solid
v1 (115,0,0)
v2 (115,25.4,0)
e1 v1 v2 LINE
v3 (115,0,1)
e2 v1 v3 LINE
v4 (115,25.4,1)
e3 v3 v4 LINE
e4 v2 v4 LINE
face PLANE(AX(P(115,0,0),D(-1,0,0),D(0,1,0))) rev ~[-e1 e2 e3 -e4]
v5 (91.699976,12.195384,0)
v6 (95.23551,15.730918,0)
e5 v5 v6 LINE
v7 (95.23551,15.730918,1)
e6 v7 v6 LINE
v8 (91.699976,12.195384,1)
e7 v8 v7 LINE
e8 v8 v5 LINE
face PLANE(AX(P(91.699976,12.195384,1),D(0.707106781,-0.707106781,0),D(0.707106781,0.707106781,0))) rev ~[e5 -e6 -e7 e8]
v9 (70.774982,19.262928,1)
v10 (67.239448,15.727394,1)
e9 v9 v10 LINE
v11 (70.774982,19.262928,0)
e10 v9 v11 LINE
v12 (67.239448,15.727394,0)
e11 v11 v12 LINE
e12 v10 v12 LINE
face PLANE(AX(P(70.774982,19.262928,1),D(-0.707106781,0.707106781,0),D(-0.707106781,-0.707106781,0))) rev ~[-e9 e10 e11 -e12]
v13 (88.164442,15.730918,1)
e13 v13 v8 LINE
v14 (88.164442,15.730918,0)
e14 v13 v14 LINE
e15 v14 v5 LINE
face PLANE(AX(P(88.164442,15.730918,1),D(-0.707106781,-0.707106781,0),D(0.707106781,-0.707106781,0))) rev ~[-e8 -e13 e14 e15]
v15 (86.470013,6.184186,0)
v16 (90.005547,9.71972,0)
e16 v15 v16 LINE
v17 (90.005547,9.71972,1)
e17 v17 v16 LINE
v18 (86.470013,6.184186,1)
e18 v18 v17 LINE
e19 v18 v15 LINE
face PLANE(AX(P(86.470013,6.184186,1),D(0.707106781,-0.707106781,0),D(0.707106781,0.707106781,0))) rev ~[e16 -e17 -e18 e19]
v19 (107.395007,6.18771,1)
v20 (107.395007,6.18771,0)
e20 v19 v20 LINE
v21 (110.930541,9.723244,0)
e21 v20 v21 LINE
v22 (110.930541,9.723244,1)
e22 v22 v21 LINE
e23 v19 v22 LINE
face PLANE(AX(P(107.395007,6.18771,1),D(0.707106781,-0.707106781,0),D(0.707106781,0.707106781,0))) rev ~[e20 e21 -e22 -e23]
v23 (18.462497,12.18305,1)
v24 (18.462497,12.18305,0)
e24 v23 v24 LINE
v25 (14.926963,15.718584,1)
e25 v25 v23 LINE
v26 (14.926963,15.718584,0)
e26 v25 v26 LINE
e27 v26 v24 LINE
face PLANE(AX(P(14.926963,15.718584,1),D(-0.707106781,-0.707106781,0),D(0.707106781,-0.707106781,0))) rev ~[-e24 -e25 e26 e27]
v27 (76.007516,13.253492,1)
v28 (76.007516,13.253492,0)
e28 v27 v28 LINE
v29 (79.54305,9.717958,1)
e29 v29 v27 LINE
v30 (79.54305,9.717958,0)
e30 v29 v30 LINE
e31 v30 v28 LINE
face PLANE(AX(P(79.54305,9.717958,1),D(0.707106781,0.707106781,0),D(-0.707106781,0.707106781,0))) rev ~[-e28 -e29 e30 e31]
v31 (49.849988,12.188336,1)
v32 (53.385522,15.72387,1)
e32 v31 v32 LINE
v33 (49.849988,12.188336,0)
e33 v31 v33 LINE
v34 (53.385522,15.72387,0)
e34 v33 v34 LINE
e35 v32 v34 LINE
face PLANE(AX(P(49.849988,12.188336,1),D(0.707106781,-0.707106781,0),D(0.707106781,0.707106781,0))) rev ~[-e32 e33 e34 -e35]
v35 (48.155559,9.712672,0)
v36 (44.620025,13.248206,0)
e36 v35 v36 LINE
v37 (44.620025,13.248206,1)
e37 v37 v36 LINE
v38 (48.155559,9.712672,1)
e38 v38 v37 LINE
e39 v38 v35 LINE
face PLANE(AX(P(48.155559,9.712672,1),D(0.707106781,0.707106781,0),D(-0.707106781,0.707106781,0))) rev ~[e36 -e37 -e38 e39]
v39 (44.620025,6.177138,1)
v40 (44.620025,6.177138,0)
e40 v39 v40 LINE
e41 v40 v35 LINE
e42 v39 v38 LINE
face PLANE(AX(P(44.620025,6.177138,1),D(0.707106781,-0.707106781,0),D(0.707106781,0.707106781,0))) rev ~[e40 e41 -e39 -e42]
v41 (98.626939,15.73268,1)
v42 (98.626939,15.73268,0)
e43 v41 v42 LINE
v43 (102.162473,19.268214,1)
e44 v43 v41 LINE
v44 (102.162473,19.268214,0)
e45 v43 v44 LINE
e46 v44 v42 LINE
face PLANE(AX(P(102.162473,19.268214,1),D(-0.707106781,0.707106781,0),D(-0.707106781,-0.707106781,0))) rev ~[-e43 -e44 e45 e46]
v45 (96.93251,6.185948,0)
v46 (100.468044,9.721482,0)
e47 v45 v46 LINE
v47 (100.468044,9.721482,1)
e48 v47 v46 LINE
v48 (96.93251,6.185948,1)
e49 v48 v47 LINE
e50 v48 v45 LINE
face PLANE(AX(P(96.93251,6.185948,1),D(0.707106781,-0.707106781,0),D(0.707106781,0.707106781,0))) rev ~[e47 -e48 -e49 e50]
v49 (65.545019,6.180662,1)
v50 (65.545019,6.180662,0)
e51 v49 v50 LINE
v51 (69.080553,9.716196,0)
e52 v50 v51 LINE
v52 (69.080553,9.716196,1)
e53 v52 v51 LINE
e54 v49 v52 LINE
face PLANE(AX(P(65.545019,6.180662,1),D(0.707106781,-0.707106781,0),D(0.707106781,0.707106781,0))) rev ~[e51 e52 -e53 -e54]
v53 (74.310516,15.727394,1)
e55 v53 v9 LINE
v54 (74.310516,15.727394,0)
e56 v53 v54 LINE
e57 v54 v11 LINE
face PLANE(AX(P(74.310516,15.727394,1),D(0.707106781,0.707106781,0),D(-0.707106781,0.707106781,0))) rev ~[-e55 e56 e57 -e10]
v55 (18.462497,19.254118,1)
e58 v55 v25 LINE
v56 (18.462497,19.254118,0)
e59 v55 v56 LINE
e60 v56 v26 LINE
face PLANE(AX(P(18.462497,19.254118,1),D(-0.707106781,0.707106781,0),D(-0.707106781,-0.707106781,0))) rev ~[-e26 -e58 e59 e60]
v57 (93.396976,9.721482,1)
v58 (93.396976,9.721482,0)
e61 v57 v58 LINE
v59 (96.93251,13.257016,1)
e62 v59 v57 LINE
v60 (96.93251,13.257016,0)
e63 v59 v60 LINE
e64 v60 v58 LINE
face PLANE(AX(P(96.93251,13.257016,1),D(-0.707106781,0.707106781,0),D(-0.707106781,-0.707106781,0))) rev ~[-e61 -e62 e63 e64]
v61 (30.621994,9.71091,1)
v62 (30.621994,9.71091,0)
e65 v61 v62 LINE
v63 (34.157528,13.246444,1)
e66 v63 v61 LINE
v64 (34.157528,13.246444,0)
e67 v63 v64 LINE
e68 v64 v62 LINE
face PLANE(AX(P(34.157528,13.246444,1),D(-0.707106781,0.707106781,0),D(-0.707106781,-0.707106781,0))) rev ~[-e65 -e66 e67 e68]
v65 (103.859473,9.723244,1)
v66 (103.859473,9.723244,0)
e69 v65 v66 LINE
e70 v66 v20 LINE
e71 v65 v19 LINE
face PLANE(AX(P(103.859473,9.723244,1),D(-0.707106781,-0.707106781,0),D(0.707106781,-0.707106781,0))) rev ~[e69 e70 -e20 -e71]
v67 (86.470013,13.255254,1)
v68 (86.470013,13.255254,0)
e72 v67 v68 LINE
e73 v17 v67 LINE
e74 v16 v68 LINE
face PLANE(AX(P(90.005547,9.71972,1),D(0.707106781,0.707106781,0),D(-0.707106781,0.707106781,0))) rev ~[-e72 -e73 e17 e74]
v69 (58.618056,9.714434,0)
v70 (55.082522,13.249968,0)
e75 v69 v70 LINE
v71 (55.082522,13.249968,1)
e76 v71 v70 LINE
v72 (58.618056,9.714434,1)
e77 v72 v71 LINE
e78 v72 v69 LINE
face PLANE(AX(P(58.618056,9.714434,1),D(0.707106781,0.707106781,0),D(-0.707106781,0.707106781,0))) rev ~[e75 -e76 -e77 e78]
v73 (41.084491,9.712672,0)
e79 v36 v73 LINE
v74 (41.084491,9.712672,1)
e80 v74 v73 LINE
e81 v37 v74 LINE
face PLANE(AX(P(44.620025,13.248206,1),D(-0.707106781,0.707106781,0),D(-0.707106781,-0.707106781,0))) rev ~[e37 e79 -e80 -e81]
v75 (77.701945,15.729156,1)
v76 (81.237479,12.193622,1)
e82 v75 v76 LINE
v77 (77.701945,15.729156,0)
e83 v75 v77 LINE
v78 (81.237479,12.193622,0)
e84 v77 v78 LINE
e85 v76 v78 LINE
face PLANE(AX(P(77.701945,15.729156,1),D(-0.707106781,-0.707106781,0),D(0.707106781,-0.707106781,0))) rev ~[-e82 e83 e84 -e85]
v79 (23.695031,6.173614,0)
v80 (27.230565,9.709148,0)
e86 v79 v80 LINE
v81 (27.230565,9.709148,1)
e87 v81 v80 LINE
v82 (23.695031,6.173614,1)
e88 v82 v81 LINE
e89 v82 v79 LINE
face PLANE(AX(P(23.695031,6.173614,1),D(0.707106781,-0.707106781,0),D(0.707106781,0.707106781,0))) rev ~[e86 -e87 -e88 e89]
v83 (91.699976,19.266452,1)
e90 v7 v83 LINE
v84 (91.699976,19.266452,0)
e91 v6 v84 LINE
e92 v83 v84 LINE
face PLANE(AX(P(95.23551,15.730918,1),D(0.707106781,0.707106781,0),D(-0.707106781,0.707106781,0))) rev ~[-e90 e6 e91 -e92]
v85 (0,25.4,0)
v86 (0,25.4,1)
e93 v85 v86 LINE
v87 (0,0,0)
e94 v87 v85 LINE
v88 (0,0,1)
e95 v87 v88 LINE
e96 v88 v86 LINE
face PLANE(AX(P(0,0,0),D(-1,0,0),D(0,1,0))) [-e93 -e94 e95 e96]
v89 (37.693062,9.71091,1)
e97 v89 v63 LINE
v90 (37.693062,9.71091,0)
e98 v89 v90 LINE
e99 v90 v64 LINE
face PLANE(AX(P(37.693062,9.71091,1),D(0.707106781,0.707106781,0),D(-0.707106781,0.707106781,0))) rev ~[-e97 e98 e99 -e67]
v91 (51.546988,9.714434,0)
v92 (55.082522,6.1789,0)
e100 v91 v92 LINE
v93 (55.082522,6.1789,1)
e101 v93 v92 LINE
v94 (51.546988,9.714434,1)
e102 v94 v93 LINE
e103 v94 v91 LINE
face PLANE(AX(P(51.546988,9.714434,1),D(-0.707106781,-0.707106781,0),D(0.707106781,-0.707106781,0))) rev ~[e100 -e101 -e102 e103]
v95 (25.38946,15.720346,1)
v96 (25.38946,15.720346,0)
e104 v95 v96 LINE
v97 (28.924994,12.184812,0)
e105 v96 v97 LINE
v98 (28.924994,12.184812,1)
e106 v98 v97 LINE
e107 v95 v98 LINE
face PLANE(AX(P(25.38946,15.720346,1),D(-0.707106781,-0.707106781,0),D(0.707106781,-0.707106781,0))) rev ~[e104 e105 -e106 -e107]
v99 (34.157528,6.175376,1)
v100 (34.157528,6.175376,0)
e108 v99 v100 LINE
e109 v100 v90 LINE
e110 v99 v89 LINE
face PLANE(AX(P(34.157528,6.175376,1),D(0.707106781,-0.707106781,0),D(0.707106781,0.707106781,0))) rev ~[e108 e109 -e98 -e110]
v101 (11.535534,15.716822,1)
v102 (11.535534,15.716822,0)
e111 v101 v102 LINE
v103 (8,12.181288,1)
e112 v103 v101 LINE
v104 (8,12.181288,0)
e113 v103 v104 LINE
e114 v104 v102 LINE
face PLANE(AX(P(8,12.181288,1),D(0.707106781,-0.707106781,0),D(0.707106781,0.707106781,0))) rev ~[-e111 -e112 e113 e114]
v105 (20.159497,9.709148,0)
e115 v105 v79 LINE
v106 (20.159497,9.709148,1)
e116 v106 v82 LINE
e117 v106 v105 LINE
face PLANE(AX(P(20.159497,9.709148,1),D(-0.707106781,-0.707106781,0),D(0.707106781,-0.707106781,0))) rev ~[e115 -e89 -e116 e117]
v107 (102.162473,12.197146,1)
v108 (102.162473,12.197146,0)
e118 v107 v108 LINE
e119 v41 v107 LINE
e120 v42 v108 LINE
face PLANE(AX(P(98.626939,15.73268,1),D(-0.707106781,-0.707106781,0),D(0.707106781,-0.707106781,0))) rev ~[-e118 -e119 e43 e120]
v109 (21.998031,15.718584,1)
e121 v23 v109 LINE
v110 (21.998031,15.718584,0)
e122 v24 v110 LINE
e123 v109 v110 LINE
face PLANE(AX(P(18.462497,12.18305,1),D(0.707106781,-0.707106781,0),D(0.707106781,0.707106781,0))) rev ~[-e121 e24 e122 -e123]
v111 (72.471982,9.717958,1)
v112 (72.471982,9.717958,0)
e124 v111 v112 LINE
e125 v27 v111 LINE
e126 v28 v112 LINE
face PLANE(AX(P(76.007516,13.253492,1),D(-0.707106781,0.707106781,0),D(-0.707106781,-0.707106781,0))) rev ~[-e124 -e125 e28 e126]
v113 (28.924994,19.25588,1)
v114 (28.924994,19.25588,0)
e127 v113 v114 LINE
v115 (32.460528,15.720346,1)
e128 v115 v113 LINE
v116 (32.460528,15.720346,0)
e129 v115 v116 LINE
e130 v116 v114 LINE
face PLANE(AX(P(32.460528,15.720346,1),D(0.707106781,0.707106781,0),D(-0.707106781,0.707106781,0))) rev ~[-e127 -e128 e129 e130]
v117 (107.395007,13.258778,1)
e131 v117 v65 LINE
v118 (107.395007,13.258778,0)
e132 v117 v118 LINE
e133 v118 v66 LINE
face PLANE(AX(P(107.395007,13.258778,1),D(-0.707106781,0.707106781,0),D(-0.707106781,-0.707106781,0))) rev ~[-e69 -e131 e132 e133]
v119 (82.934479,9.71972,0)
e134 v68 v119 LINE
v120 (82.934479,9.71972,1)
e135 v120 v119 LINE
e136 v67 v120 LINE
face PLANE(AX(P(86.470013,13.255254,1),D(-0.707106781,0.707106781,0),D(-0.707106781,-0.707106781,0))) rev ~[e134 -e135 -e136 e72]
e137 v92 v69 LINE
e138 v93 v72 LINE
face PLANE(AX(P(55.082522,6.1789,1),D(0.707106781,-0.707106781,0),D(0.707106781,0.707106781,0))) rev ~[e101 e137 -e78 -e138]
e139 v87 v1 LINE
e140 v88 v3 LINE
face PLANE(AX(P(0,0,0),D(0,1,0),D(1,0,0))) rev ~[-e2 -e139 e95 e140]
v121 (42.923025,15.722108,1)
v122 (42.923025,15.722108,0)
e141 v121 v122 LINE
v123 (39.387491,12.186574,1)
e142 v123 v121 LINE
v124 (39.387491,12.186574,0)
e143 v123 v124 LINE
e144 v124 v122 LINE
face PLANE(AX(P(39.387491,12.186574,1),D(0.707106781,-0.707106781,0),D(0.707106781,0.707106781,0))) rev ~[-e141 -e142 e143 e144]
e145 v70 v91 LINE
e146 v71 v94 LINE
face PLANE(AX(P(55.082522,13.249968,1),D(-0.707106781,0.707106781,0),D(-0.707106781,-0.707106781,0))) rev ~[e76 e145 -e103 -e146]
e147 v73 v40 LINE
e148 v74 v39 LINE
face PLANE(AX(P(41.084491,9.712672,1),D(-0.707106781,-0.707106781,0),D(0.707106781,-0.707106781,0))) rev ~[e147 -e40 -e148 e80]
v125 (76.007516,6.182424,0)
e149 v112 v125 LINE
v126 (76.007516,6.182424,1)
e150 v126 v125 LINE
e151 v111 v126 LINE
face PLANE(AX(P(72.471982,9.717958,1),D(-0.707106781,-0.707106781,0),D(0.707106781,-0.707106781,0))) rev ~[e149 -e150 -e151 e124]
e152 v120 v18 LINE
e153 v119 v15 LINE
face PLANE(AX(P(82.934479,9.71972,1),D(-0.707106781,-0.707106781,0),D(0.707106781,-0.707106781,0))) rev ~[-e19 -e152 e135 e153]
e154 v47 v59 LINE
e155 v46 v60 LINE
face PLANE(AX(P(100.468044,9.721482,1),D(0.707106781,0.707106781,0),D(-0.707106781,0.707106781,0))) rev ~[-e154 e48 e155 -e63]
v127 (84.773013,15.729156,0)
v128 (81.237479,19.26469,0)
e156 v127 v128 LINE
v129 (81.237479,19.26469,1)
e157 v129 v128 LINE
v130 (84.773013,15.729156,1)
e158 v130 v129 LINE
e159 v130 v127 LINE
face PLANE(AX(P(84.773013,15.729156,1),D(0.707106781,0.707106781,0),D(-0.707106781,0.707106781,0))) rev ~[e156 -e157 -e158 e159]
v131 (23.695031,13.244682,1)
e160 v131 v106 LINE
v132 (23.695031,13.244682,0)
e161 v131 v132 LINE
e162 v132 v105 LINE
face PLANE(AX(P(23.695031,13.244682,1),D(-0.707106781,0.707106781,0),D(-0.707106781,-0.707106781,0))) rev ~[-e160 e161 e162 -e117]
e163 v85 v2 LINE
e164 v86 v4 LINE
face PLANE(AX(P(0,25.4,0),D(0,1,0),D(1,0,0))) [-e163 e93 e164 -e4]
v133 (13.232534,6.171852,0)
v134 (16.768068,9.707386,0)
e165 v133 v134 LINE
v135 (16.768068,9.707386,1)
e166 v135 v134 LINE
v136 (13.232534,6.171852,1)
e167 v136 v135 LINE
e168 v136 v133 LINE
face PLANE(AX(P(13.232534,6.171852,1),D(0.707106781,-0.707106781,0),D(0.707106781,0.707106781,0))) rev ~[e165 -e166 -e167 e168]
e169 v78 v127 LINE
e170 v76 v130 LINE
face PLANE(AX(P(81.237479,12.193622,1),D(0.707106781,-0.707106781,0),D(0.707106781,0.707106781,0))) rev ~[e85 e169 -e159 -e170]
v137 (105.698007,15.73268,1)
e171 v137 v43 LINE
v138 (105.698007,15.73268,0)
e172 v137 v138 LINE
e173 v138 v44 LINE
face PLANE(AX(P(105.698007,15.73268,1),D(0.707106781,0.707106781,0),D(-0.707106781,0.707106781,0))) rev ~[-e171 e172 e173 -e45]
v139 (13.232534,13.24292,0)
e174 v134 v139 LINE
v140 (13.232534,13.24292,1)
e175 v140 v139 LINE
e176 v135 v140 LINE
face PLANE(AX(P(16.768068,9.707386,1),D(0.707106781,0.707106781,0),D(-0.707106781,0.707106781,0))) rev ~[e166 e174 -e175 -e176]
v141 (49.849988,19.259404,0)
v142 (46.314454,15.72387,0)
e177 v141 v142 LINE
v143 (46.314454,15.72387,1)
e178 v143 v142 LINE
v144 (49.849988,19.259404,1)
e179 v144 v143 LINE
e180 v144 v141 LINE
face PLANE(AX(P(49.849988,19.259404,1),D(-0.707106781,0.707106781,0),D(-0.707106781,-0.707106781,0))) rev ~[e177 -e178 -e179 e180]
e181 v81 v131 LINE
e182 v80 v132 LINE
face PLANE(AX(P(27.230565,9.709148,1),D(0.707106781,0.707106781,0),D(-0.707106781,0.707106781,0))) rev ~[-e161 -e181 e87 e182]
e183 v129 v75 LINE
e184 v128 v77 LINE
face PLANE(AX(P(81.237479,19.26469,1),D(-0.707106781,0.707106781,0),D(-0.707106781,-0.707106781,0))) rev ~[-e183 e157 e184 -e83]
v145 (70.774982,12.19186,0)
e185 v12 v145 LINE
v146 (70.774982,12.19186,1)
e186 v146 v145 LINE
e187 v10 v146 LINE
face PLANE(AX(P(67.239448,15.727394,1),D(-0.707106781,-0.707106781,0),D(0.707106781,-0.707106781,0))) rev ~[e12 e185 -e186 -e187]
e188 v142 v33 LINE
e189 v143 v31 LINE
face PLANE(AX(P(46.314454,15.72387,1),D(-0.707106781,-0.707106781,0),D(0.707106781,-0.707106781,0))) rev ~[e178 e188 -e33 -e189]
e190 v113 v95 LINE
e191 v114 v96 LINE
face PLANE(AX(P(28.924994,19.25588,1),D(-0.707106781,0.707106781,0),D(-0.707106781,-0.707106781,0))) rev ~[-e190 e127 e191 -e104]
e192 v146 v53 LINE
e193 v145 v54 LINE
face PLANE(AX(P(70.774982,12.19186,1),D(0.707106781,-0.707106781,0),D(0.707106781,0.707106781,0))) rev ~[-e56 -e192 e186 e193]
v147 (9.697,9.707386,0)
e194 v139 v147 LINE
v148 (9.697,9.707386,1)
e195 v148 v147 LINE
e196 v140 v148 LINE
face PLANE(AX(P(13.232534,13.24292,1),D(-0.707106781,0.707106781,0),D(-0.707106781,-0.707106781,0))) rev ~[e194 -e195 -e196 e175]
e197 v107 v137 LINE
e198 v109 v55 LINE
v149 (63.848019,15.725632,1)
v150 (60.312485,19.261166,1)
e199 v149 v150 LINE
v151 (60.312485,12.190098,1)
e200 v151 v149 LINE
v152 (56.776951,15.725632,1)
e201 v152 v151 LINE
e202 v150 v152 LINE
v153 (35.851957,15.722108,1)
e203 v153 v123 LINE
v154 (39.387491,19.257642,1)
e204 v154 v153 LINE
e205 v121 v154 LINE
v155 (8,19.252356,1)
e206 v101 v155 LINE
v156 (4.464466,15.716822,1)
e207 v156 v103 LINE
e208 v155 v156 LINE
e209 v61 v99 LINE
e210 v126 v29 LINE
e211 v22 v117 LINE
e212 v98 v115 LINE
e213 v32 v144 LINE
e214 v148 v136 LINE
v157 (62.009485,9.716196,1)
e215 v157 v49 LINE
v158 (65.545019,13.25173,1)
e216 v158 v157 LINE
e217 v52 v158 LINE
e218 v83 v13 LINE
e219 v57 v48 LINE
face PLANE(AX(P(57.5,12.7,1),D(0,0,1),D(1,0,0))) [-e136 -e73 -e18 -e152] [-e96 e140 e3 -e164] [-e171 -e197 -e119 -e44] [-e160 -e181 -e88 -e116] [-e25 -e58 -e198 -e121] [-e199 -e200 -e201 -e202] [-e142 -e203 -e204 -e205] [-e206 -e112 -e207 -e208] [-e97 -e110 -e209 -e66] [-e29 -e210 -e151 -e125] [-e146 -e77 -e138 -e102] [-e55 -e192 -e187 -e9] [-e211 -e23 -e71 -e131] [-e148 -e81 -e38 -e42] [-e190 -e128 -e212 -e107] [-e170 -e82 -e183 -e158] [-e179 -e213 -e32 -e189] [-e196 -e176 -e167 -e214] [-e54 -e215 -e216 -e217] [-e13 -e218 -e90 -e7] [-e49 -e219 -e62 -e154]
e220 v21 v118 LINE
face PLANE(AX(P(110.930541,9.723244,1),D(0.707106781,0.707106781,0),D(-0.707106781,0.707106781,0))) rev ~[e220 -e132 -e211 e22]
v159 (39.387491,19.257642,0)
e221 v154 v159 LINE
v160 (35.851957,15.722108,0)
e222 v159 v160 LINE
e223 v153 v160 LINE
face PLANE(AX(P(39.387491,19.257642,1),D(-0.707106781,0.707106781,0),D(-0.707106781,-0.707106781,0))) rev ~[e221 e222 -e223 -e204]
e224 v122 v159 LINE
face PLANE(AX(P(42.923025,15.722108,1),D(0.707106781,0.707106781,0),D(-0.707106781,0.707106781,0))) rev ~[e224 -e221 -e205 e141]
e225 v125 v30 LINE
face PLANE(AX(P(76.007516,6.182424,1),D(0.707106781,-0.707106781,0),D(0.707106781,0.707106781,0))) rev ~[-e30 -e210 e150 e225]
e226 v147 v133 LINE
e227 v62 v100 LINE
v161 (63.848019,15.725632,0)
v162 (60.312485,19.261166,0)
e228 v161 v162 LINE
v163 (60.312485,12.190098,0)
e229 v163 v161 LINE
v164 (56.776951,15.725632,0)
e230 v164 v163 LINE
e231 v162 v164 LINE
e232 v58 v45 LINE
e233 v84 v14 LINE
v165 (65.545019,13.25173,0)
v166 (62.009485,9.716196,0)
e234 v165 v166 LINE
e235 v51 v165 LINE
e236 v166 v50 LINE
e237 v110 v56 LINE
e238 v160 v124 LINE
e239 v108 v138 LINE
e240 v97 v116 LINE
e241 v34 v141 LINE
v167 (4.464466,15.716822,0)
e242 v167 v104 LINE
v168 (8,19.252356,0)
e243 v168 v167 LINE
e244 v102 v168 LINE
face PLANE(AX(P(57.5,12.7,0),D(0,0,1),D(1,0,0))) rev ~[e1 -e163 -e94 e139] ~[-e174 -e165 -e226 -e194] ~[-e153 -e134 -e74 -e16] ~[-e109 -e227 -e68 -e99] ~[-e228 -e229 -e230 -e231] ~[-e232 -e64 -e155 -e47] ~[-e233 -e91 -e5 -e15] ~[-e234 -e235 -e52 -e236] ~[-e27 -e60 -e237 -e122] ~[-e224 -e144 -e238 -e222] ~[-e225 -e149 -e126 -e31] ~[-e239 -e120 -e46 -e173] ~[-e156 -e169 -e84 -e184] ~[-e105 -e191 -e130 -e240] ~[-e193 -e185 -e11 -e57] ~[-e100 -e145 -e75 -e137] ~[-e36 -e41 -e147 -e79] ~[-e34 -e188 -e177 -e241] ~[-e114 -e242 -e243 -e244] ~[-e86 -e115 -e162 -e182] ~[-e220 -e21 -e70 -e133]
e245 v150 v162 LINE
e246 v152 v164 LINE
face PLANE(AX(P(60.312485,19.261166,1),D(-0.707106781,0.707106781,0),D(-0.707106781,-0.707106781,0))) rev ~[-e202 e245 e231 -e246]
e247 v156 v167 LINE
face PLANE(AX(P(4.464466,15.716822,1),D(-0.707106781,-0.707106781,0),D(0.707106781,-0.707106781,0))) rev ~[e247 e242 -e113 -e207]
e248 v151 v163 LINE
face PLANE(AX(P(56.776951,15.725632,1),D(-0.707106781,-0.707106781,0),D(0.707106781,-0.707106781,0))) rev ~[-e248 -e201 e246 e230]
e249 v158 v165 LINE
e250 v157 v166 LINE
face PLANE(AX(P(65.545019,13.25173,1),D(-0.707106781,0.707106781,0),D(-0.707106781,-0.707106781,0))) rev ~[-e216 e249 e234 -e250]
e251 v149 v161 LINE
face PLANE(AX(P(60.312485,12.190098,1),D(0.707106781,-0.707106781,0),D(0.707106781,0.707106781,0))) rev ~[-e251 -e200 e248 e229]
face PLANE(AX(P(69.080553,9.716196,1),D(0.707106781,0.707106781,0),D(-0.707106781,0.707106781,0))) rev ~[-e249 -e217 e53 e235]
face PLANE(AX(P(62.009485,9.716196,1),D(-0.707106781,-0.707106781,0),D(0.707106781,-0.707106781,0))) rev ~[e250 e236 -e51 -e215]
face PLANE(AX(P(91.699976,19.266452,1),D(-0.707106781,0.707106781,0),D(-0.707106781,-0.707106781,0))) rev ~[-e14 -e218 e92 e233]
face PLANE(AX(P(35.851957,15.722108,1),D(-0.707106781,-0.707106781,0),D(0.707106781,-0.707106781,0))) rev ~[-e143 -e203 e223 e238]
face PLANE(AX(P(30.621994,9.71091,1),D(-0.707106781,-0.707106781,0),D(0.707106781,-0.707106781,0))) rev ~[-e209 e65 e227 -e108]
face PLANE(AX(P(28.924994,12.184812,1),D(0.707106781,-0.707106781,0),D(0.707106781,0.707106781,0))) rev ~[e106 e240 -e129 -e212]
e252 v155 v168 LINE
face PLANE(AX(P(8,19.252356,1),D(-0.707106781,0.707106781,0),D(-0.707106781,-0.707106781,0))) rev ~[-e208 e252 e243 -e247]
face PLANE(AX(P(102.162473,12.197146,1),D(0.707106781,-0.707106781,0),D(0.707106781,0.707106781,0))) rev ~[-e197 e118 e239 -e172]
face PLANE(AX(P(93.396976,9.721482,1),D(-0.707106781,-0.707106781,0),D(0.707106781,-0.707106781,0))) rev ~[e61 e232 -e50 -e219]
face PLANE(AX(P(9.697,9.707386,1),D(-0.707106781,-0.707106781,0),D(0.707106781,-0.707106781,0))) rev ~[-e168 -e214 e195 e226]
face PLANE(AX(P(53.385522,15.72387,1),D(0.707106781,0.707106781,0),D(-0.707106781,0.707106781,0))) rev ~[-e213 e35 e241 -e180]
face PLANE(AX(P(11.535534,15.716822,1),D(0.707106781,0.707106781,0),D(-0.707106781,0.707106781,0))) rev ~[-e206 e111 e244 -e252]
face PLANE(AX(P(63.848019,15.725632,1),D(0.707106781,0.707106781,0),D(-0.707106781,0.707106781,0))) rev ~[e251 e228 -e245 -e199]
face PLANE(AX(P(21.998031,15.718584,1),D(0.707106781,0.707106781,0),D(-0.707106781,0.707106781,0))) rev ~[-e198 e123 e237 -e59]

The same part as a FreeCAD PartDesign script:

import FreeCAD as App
import Part
import Sketcher

doc = App.newDocument("Part")
body = doc.addObject("PartDesign::Body", "Body")

# Sketch on XY plane
sketch1 = body.newObject("Sketcher::SketchObject", "Sketch")
sketch1.AttachmentSupport = (doc.getObject("XY_Plane"), [""])
sketch1.MapMode = "FlatFace"
sketch1.addGeometry(Part.LineSegment(App.Vector(0, 25, 0), App.Vector(0, 0, 0)), False)
sketch1.addGeometry(Part.LineSegment(App.Vector(0, 0, 0), App.Vector(115, 0, 0)), False)
sketch1.addGeometry(Part.LineSegment(App.Vector(115, 0, 0), App.Vector(115, 25, 0)), False)
sketch1.addGeometry(Part.LineSegment(App.Vector(115, 25, 0), App.Vector(0, 25, 0)), False)
sketch1.addConstraint(Sketcher.Constraint("Coincident", 0, 2, 1, 1))
sketch1.addConstraint(Sketcher.Constraint("Coincident", 1, 2, 2, 1))
sketch1.addConstraint(Sketcher.Constraint("Coincident", 2, 2, 3, 1))
sketch1.addConstraint(Sketcher.Constraint("Coincident", 3, 2, 0, 1))
sketch1.addConstraint(Sketcher.Constraint("Vertical", 0))
sketch1.addConstraint(Sketcher.Constraint("Horizontal", 1))
sketch1.addConstraint(Sketcher.Constraint("Vertical", 2))
sketch1.addConstraint(Sketcher.Constraint("Horizontal", 3))
sketch1.addConstraint(Sketcher.Constraint("Coincident", 0, 2, -1, 1))
sketch1.addConstraint(Sketcher.Constraint("DistanceX", 1, 1, 1, 2, 115.0))
sketch1.addConstraint(Sketcher.Constraint("DistanceY", 0, 2, 0, 1, 25.4))
pad1 = body.newObject("PartDesign::Pad", "Pad")
pad1.Profile = sketch1
pad1.Length = 1

# Sketch on XY plane
sketch2 = body.newObject("Sketcher::SketchObject", "Sketch001")
sketch2.AttachmentSupport = (doc.getObject("XY_Plane"), [""])
sketch2.MapMode = "FlatFace"
sketch2.AttachmentOffset = App.Placement(App.Vector(0, 0, 1), App.Rotation())
sketch2.addGeometry(Part.LineSegment(App.Vector(8, 12.181288, 0), App.Vector(11.535534, 15.716822, 0)), False)
sketch2.addGeometry(Part.LineSegment(App.Vector(11.535534, 15.716822, 0), App.Vector(8, 19.252356, 0)), False)
sketch2.addGeometry(Part.LineSegment(App.Vector(8, 19.252356, 0), App.Vector(4.464466, 15.716822, 0)), False)
sketch2.addGeometry(Part.LineSegment(App.Vector(4.464466, 15.716822, 0), App.Vector(8, 12.181288, 0)), False)
sketch2.addGeometry(Part.LineSegment(App.Vector(18.462497, 12.18305, 0), App.Vector(21.998031, 15.718584, 0)), False)
sketch2.addGeometry(Part.LineSegment(App.Vector(21.998031, 15.718584, 0), App.Vector(18.462497, 19.254118, 0)), False)
sketch2.addGeometry(Part.LineSegment(App.Vector(18.462497, 19.254118, 0), App.Vector(14.926963, 15.718584, 0)), False)
sketch2.addGeometry(Part.LineSegment(App.Vector(14.926963, 15.718584, 0), App.Vector(18.462497, 12.18305, 0)), False)
sketch2.addGeometry(Part.LineSegment(App.Vector(28.924994, 12.184812, 0), App.Vector(32.460528, 15.720346, 0)), False)
sketch2.addGeometry(Part.LineSegment(App.Vector(32.460528, 15.720346, 0), App.Vector(28.924994, 19.25588, 0)), False)
sketch2.addGeometry(Part.LineSegment(App.Vector(28.924994, 19.25588, 0), App.Vector(25.38946, 15.720346, 0)), False)
sketch2.addGeometry(Part.LineSegment(App.Vector(25.38946, 15.720346, 0), App.Vector(28.924994, 12.184812, 0)), False)
sketch2.addGeometry(Part.LineSegment(App.Vector(39.387491, 12.186574, 0), App.Vector(42.923025, 15.722108, 0)), False)
sketch2.addGeometry(Part.LineSegment(App.Vector(42.923025, 15.722108, 0), App.Vector(39.387491, 19.257642, 0)), False)
sketch2.addGeometry(Part.LineSegment(App.Vector(39.387491, 19.257642, 0), App.Vector(35.851957, 15.722108, 0)), False)
sketch2.addGeometry(Part.LineSegment(App.Vector(35.851957, 15.722108, 0), App.Vector(39.387491, 12.186574, 0)), False)
sketch2.addGeometry(Part.LineSegment(App.Vector(49.849988, 12.188336, 0), App.Vector(53.385522, 15.72387, 0)), False)
sketch2.addGeometry(Part.LineSegment(App.Vector(53.385522, 15.72387, 0), App.Vector(49.849988, 19.259404, 0)), False)
sketch2.addGeometry(Part.LineSegment(App.Vector(49.849988, 19.259404, 0), App.Vector(46.314454, 15.72387, 0)), False)
sketch2.addGeometry(Part.LineSegment(App.Vector(46.314454, 15.72387, 0), App.Vector(49.849988, 12.188336, 0)), False)
sketch2.addGeometry(Part.LineSegment(App.Vector(60.312485, 12.190098, 0), App.Vector(63.848019, 15.725632, 0)), False)
sketch2.addGeometry(Part.LineSegment(App.Vector(63.848019, 15.725632, 0), App.Vector(60.312485, 19.261166, 0)), False)
sketch2.addGeometry(Part.LineSegment(App.Vector(60.312485, 19.261166, 0), App.Vector(56.776951, 15.725632, 0)), False)
sketch2.addGeometry(Part.LineSegment(App.Vector(56.776951, 15.725632, 0), App.Vector(60.312485, 12.190098, 0)), False)
sketch2.addGeometry(Part.LineSegment(App.Vector(70.774982, 12.19186, 0), App.Vector(74.310516, 15.727394, 0)), False)
sketch2.addGeometry(Part.LineSegment(App.Vector(74.310516, 15.727394, 0), App.Vector(70.774982, 19.262928, 0)), False)
sketch2.addGeometry(Part.LineSegment(App.Vector(70.774982, 19.262928, 0), App.Vector(67.239448, 15.727394, 0)), False)
sketch2.addGeometry(Part.LineSegment(App.Vector(67.239448, 15.727394, 0), App.Vector(70.774982, 12.19186, 0)), False)
sketch2.addGeometry(Part.LineSegment(App.Vector(81.237479, 12.193622, 0), App.Vector(84.773013, 15.729156, 0)), False)
sketch2.addGeometry(Part.LineSegment(App.Vector(84.773013, 15.729156, 0), App.Vector(81.237479, 19.26469, 0)), False)
sketch2.addGeometry(Part.LineSegment(App.Vector(81.237479, 19.26469, 0), App.Vector(77.701945, 15.729156, 0)), False)
sketch2.addGeometry(Part.LineSegment(App.Vector(77.701945, 15.729156, 0), App.Vector(81.237479, 12.193622, 0)), False)
sketch2.addGeometry(Part.LineSegment(App.Vector(91.699976, 12.195384, 0), App.Vector(95.23551, 15.730918, 0)), False)
sketch2.addGeometry(Part.LineSegment(App.Vector(95.23551, 15.730918, 0), App.Vector(91.699976, 19.266452, 0)), False)
sketch2.addGeometry(Part.LineSegment(App.Vector(91.699976, 19.266452, 0), App.Vector(88.164442, 15.730918, 0)), False)
sketch2.addGeometry(Part.LineSegment(App.Vector(88.164442, 15.730918, 0), App.Vector(91.699976, 12.195384, 0)), False)
sketch2.addGeometry(Part.LineSegment(App.Vector(102.162473, 12.197146, 0), App.Vector(105.698007, 15.73268, 0)), False)
sketch2.addGeometry(Part.LineSegment(App.Vector(105.698007, 15.73268, 0), App.Vector(102.162473, 19.268214, 0)), False)
sketch2.addGeometry(Part.LineSegment(App.Vector(102.162473, 19.268214, 0), App.Vector(98.626939, 15.73268, 0)), False)
sketch2.addGeometry(Part.LineSegment(App.Vector(98.626939, 15.73268, 0), App.Vector(102.162473, 12.197146, 0)), False)
sketch2.addGeometry(Part.LineSegment(App.Vector(13.232534, 6.171852, 0), App.Vector(16.768068, 9.707386, 0)), False)
sketch2.addGeometry(Part.LineSegment(App.Vector(16.768068, 9.707386, 0), App.Vector(13.232534, 13.24292, 0)), False)
sketch2.addGeometry(Part.LineSegment(App.Vector(13.232534, 13.24292, 0), App.Vector(9.697, 9.707386, 0)), False)
sketch2.addGeometry(Part.LineSegment(App.Vector(9.697, 9.707386, 0), App.Vector(13.232534, 6.171852, 0)), False)
sketch2.addGeometry(Part.LineSegment(App.Vector(23.695031, 6.173614, 0), App.Vector(27.230565, 9.709148, 0)), False)
sketch2.addGeometry(Part.LineSegment(App.Vector(27.230565, 9.709148, 0), App.Vector(23.695031, 13.244682, 0)), False)
sketch2.addGeometry(Part.LineSegment(App.Vector(23.695031, 13.244682, 0), App.Vector(20.159497, 9.709148, 0)), False)
sketch2.addGeometry(Part.LineSegment(App.Vector(20.159497, 9.709148, 0), App.Vector(23.695031, 6.173614, 0)), False)
sketch2.addGeometry(Part.LineSegment(App.Vector(34.157528, 6.175376, 0), App.Vector(37.693062, 9.71091, 0)), False)
sketch2.addGeometry(Part.LineSegment(App.Vector(37.693062, 9.71091, 0), App.Vector(34.157528, 13.246444, 0)), False)
sketch2.addGeometry(Part.LineSegment(App.Vector(34.157528, 13.246444, 0), App.Vector(30.621994, 9.71091, 0)), False)
sketch2.addGeometry(Part.LineSegment(App.Vector(30.621994, 9.71091, 0), App.Vector(34.157528, 6.175376, 0)), False)
sketch2.addGeometry(Part.LineSegment(App.Vector(44.620025, 6.177138, 0), App.Vector(48.155559, 9.712672, 0)), False)
sketch2.addGeometry(Part.LineSegment(App.Vector(48.155559, 9.712672, 0), App.Vector(44.620025, 13.248206, 0)), False)
sketch2.addGeometry(Part.LineSegment(App.Vector(44.620025, 13.248206, 0), App.Vector(41.084491, 9.712672, 0)), False)
sketch2.addGeometry(Part.LineSegment(App.Vector(41.084491, 9.712672, 0), App.Vector(44.620025, 6.177138, 0)), False)
sketch2.addGeometry(Part.LineSegment(App.Vector(55.082522, 6.1789, 0), App.Vector(58.618056, 9.714434, 0)), False)
sketch2.addGeometry(Part.LineSegment(App.Vector(58.618056, 9.714434, 0), App.Vector(55.082522, 13.249968, 0)), False)
sketch2.addGeometry(Part.LineSegment(App.Vector(55.082522, 13.249968, 0), App.Vector(51.546988, 9.714434, 0)), False)
sketch2.addGeometry(Part.LineSegment(App.Vector(51.546988, 9.714434, 0), App.Vector(55.082522, 6.1789, 0)), False)
sketch2.addGeometry(Part.LineSegment(App.Vector(65.545019, 6.180662, 0), App.Vector(69.080553, 9.716196, 0)), False)
sketch2.addGeometry(Part.LineSegment(App.Vector(69.080553, 9.716196, 0), App.Vector(65.545019, 13.25173, 0)), False)
sketch2.addGeometry(Part.LineSegment(App.Vector(65.545019, 13.25173, 0), App.Vector(62.009485, 9.716196, 0)), False)
sketch2.addGeometry(Part.LineSegment(App.Vector(62.009485, 9.716196, 0), App.Vector(65.545019, 6.180662, 0)), False)
sketch2.addGeometry(Part.LineSegment(App.Vector(76.007516, 6.182424, 0), App.Vector(79.54305, 9.717958, 0)), False)
sketch2.addGeometry(Part.LineSegment(App.Vector(79.54305, 9.717958, 0), App.Vector(76.007516, 13.253492, 0)), False)
sketch2.addGeometry(Part.LineSegment(App.Vector(76.007516, 13.253492, 0), App.Vector(72.471982, 9.717958, 0)), False)
sketch2.addGeometry(Part.LineSegment(App.Vector(72.471982, 9.717958, 0), App.Vector(76.007516, 6.182424, 0)), False)
sketch2.addGeometry(Part.LineSegment(App.Vector(86.470013, 6.184186, 0), App.Vector(90.005547, 9.71972, 0)), False)
sketch2.addGeometry(Part.LineSegment(App.Vector(90.005547, 9.71972, 0), App.Vector(86.470013, 13.255254, 0)), False)
sketch2.addGeometry(Part.LineSegment(App.Vector(86.470013, 13.255254, 0), App.Vector(82.934479, 9.71972, 0)), False)
sketch2.addGeometry(Part.LineSegment(App.Vector(82.934479, 9.71972, 0), App.Vector(86.470013, 6.184186, 0)), False)
sketch2.addGeometry(Part.LineSegment(App.Vector(96.93251, 6.185948, 0), App.Vector(100.468044, 9.721482, 0)), False)
sketch2.addGeometry(Part.LineSegment(App.Vector(100.468044, 9.721482, 0), App.Vector(96.93251, 13.257016, 0)), False)
sketch2.addGeometry(Part.LineSegment(App.Vector(96.93251, 13.257016, 0), App.Vector(93.396976, 9.721482, 0)), False)
sketch2.addGeometry(Part.LineSegment(App.Vector(93.396976, 9.721482, 0), App.Vector(96.93251, 6.185948, 0)), False)
sketch2.addGeometry(Part.LineSegment(App.Vector(107.395007, 6.18771, 0), App.Vector(110.930541, 9.723244, 0)), False)
sketch2.addGeometry(Part.LineSegment(App.Vector(110.930541, 9.723244, 0), App.Vector(107.395007, 13.258778, 0)), False)
sketch2.addGeometry(Part.LineSegment(App.Vector(107.395007, 13.258778, 0), App.Vector(103.859473, 9.723244, 0)), False)
sketch2.addGeometry(Part.LineSegment(App.Vector(103.859473, 9.723244, 0), App.Vector(107.395007, 6.18771, 0)), False)
sketch2.addConstraint(Sketcher.Constraint("Coincident", 0, 2, 1, 1))
sketch2.addConstraint(Sketcher.Constraint("Coincident", 1, 2, 2, 1))
sketch2.addConstraint(Sketcher.Constraint("Coincident", 2, 2, 3, 1))
sketch2.addConstraint(Sketcher.Constraint("Coincident", 3, 2, 0, 1))
sketch2.addConstraint(Sketcher.Constraint("Coincident", 4, 2, 5, 1))
sketch2.addConstraint(Sketcher.Constraint("Coincident", 5, 2, 6, 1))
sketch2.addConstraint(Sketcher.Constraint("Coincident", 6, 2, 7, 1))
sketch2.addConstraint(Sketcher.Constraint("Coincident", 7, 2, 4, 1))
sketch2.addConstraint(Sketcher.Constraint("Coincident", 8, 2, 9, 1))
sketch2.addConstraint(Sketcher.Constraint("Coincident", 9, 2, 10, 1))
sketch2.addConstraint(Sketcher.Constraint("Coincident", 10, 2, 11, 1))
sketch2.addConstraint(Sketcher.Constraint("Coincident", 11, 2, 8, 1))
sketch2.addConstraint(Sketcher.Constraint("Coincident", 12, 2, 13, 1))
sketch2.addConstraint(Sketcher.Constraint("Coincident", 13, 2, 14, 1))
sketch2.addConstraint(Sketcher.Constraint("Coincident", 14, 2, 15, 1))
sketch2.addConstraint(Sketcher.Constraint("Coincident", 15, 2, 12, 1))
sketch2.addConstraint(Sketcher.Constraint("Coincident", 16, 2, 17, 1))
sketch2.addConstraint(Sketcher.Constraint("Coincident", 17, 2, 18, 1))
sketch2.addConstraint(Sketcher.Constraint("Coincident", 18, 2, 19, 1))
sketch2.addConstraint(Sketcher.Constraint("Coincident", 19, 2, 16, 1))
sketch2.addConstraint(Sketcher.Constraint("Coincident", 20, 2, 21, 1))
sketch2.addConstraint(Sketcher.Constraint("Coincident", 21, 2, 22, 1))
sketch2.addConstraint(Sketcher.Constraint("Coincident", 22, 2, 23, 1))
sketch2.addConstraint(Sketcher.Constraint("Coincident", 23, 2, 20, 1))
sketch2.addConstraint(Sketcher.Constraint("Coincident", 24, 2, 25, 1))
sketch2.addConstraint(Sketcher.Constraint("Coincident", 25, 2, 26, 1))
sketch2.addConstraint(Sketcher.Constraint("Coincident", 26, 2, 27, 1))
sketch2.addConstraint(Sketcher.Constraint("Coincident", 27, 2, 24, 1))
sketch2.addConstraint(Sketcher.Constraint("Coincident", 28, 2, 29, 1))
sketch2.addConstraint(Sketcher.Constraint("Coincident", 29, 2, 30, 1))
sketch2.addConstraint(Sketcher.Constraint("Coincident", 30, 2, 31, 1))
sketch2.addConstraint(Sketcher.Constraint("Coincident", 31, 2, 28, 1))
sketch2.addConstraint(Sketcher.Constraint("Coincident", 32, 2, 33, 1))
sketch2.addConstraint(Sketcher.Constraint("Coincident", 33, 2, 34, 1))
sketch2.addConstraint(Sketcher.Constraint("Coincident", 34, 2, 35, 1))
sketch2.addConstraint(Sketcher.Constraint("Coincident", 35, 2, 32, 1))
sketch2.addConstraint(Sketcher.Constraint("Coincident", 36, 2, 37, 1))
sketch2.addConstraint(Sketcher.Constraint("Coincident", 37, 2, 38, 1))
sketch2.addConstraint(Sketcher.Constraint("Coincident", 38, 2, 39, 1))
sketch2.addConstraint(Sketcher.Constraint("Coincident", 39, 2, 36, 1))
sketch2.addConstraint(Sketcher.Constraint("Coincident", 40, 2, 41, 1))
sketch2.addConstraint(Sketcher.Constraint("Coincident", 41, 2, 42, 1))
sketch2.addConstraint(Sketcher.Constraint("Coincident", 42, 2, 43, 1))
sketch2.addConstraint(Sketcher.Constraint("Coincident", 43, 2, 40, 1))
sketch2.addConstraint(Sketcher.Constraint("Coincident", 44, 2, 45, 1))
sketch2.addConstraint(Sketcher.Constraint("Coincident", 45, 2, 46, 1))
sketch2.addConstraint(Sketcher.Constraint("Coincident", 46, 2, 47, 1))
sketch2.addConstraint(Sketcher.Constraint("Coincident", 47, 2, 44, 1))
sketch2.addConstraint(Sketcher.Constraint("Coincident", 48, 2, 49, 1))
sketch2.addConstraint(Sketcher.Constraint("Coincident", 49, 2, 50, 1))
sketch2.addConstraint(Sketcher.Constraint("Coincident", 50, 2, 51, 1))
sketch2.addConstraint(Sketcher.Constraint("Coincident", 51, 2, 48, 1))
sketch2.addConstraint(Sketcher.Constraint("Coincident", 52, 2, 53, 1))
sketch2.addConstraint(Sketcher.Constraint("Coincident", 53, 2, 54, 1))
sketch2.addConstraint(Sketcher.Constraint("Coincident", 54, 2, 55, 1))
sketch2.addConstraint(Sketcher.Constraint("Coincident", 55, 2, 52, 1))
sketch2.addConstraint(Sketcher.Constraint("Coincident", 56, 2, 57, 1))
sketch2.addConstraint(Sketcher.Constraint("Coincident", 57, 2, 58, 1))
sketch2.addConstraint(Sketcher.Constraint("Coincident", 58, 2, 59, 1))
sketch2.addConstraint(Sketcher.Constraint("Coincident", 59, 2, 56, 1))
sketch2.addConstraint(Sketcher.Constraint("Coincident", 60, 2, 61, 1))
sketch2.addConstraint(Sketcher.Constraint("Coincident", 61, 2, 62, 1))
sketch2.addConstraint(Sketcher.Constraint("Coincident", 62, 2, 63, 1))
sketch2.addConstraint(Sketcher.Constraint("Coincident", 63, 2, 60, 1))
sketch2.addConstraint(Sketcher.Constraint("Coincident", 64, 2, 65, 1))
sketch2.addConstraint(Sketcher.Constraint("Coincident", 65, 2, 66, 1))
sketch2.addConstraint(Sketcher.Constraint("Coincident", 66, 2, 67, 1))
sketch2.addConstraint(Sketcher.Constraint("Coincident", 67, 2, 64, 1))
sketch2.addConstraint(Sketcher.Constraint("Coincident", 68, 2, 69, 1))
sketch2.addConstraint(Sketcher.Constraint("Coincident", 69, 2, 70, 1))
sketch2.addConstraint(Sketcher.Constraint("Coincident", 70, 2, 71, 1))
sketch2.addConstraint(Sketcher.Constraint("Coincident", 71, 2, 68, 1))
sketch2.addConstraint(Sketcher.Constraint("Coincident", 72, 2, 73, 1))
sketch2.addConstraint(Sketcher.Constraint("Coincident", 73, 2, 74, 1))
sketch2.addConstraint(Sketcher.Constraint("Coincident", 74, 2, 75, 1))
sketch2.addConstraint(Sketcher.Constraint("Coincident", 75, 2, 72, 1))
sketch2.addConstraint(Sketcher.Constraint("Coincident", 76, 2, 77, 1))
sketch2.addConstraint(Sketcher.Constraint("Coincident", 77, 2, 78, 1))
sketch2.addConstraint(Sketcher.Constraint("Coincident", 78, 2, 79, 1))
sketch2.addConstraint(Sketcher.Constraint("Coincident", 79, 2, 76, 1))
sketch2.addConstraint(Sketcher.Constraint("Perpendicular", 0, 1))
sketch2.addConstraint(Sketcher.Constraint("Perpendicular", 1, 2))
sketch2.addConstraint(Sketcher.Constraint("Perpendicular", 2, 3))
sketch2.addConstraint(Sketcher.Constraint("Perpendicular", 3, 4))
sketch2.addConstraint(Sketcher.Constraint("Perpendicular", 4, 5))
sketch2.addConstraint(Sketcher.Constraint("Perpendicular", 5, 6))
sketch2.addConstraint(Sketcher.Constraint("Perpendicular", 6, 7))
sketch2.addConstraint(Sketcher.Constraint("Perpendicular", 7, 8))
sketch2.addConstraint(Sketcher.Constraint("Perpendicular", 8, 9))
sketch2.addConstraint(Sketcher.Constraint("Perpendicular", 9, 10))
sketch2.addConstraint(Sketcher.Constraint("Perpendicular", 10, 11))
sketch2.addConstraint(Sketcher.Constraint("Perpendicular", 11, 12))
sketch2.addConstraint(Sketcher.Constraint("Perpendicular", 12, 13))
sketch2.addConstraint(Sketcher.Constraint("Perpendicular", 13, 14))
sketch2.addConstraint(Sketcher.Constraint("Perpendicular", 14, 15))
sketch2.addConstraint(Sketcher.Constraint("Perpendicular", 15, 16))
sketch2.addConstraint(Sketcher.Constraint("Perpendicular", 16, 17))
sketch2.addConstraint(Sketcher.Constraint("Perpendicular", 17, 18))
sketch2.addConstraint(Sketcher.Constraint("Perpendicular", 18, 19))
sketch2.addConstraint(Sketcher.Constraint("Perpendicular", 19, 20))
sketch2.addConstraint(Sketcher.Constraint("Perpendicular", 20, 21))
sketch2.addConstraint(Sketcher.Constraint("Perpendicular", 21, 22))
sketch2.addConstraint(Sketcher.Constraint("Perpendicular", 22, 23))
sketch2.addConstraint(Sketcher.Constraint("Perpendicular", 23, 24))
sketch2.addConstraint(Sketcher.Constraint("Perpendicular", 24, 25))
sketch2.addConstraint(Sketcher.Constraint("Perpendicular", 25, 26))
sketch2.addConstraint(Sketcher.Constraint("Perpendicular", 26, 27))
sketch2.addConstraint(Sketcher.Constraint("Perpendicular", 27, 28))
sketch2.addConstraint(Sketcher.Constraint("Perpendicular", 28, 29))
sketch2.addConstraint(Sketcher.Constraint("Perpendicular", 29, 30))
sketch2.addConstraint(Sketcher.Constraint("Perpendicular", 30, 31))
sketch2.addConstraint(Sketcher.Constraint("Perpendicular", 31, 32))
sketch2.addConstraint(Sketcher.Constraint("Perpendicular", 32, 33))
sketch2.addConstraint(Sketcher.Constraint("Perpendicular", 33, 34))
sketch2.addConstraint(Sketcher.Constraint("Perpendicular", 34, 35))
sketch2.addConstraint(Sketcher.Constraint("Perpendicular", 35, 36))
sketch2.addConstraint(Sketcher.Constraint("Perpendicular", 36, 37))
sketch2.addConstraint(Sketcher.Constraint("Perpendicular", 37, 38))
sketch2.addConstraint(Sketcher.Constraint("Perpendicular", 38, 39))
sketch2.addConstraint(Sketcher.Constraint("Perpendicular", 39, 40))
sketch2.addConstraint(Sketcher.Constraint("Perpendicular", 40, 41))
sketch2.addConstraint(Sketcher.Constraint("Perpendicular", 41, 42))
sketch2.addConstraint(Sketcher.Constraint("Perpendicular", 42, 43))
sketch2.addConstraint(Sketcher.Constraint("Perpendicular", 43, 44))
sketch2.addConstraint(Sketcher.Constraint("Perpendicular", 44, 45))
sketch2.addConstraint(Sketcher.Constraint("Perpendicular", 45, 46))
sketch2.addConstraint(Sketcher.Constraint("Perpendicular", 46, 47))
sketch2.addConstraint(Sketcher.Constraint("Perpendicular", 47, 48))
sketch2.addConstraint(Sketcher.Constraint("Perpendicular", 48, 49))
sketch2.addConstraint(Sketcher.Constraint("Perpendicular", 49, 50))
sketch2.addConstraint(Sketcher.Constraint("Perpendicular", 50, 51))
sketch2.addConstraint(Sketcher.Constraint("Perpendicular", 51, 52))
sketch2.addConstraint(Sketcher.Constraint("Perpendicular", 52, 53))
sketch2.addConstraint(Sketcher.Constraint("Perpendicular", 53, 54))
sketch2.addConstraint(Sketcher.Constraint("Perpendicular", 54, 55))
sketch2.addConstraint(Sketcher.Constraint("Perpendicular", 55, 56))
sketch2.addConstraint(Sketcher.Constraint("Perpendicular", 56, 57))
sketch2.addConstraint(Sketcher.Constraint("Perpendicular", 57, 58))
sketch2.addConstraint(Sketcher.Constraint("Perpendicular", 58, 59))
sketch2.addConstraint(Sketcher.Constraint("Perpendicular", 59, 60))
sketch2.addConstraint(Sketcher.Constraint("Perpendicular", 60, 61))
sketch2.addConstraint(Sketcher.Constraint("Perpendicular", 61, 62))
sketch2.addConstraint(Sketcher.Constraint("Perpendicular", 62, 63))
sketch2.addConstraint(Sketcher.Constraint("Perpendicular", 63, 64))
sketch2.addConstraint(Sketcher.Constraint("Perpendicular", 64, 65))
sketch2.addConstraint(Sketcher.Constraint("Perpendicular", 65, 66))
sketch2.addConstraint(Sketcher.Constraint("Perpendicular", 66, 67))
sketch2.addConstraint(Sketcher.Constraint("Perpendicular", 67, 68))
sketch2.addConstraint(Sketcher.Constraint("Perpendicular", 68, 69))
sketch2.addConstraint(Sketcher.Constraint("Perpendicular", 69, 70))
sketch2.addConstraint(Sketcher.Constraint("Perpendicular", 70, 71))
sketch2.addConstraint(Sketcher.Constraint("Perpendicular", 71, 72))
sketch2.addConstraint(Sketcher.Constraint("Perpendicular", 72, 73))
sketch2.addConstraint(Sketcher.Constraint("Perpendicular", 73, 74))
sketch2.addConstraint(Sketcher.Constraint("Perpendicular", 74, 75))
sketch2.addConstraint(Sketcher.Constraint("Perpendicular", 75, 76))
sketch2.addConstraint(Sketcher.Constraint("Perpendicular", 76, 77))
sketch2.addConstraint(Sketcher.Constraint("Perpendicular", 77, 78))
sketch2.addConstraint(Sketcher.Constraint("Perpendicular", 78, 79))
sketch2.addConstraint(Sketcher.Constraint("Horizontal", 0, 2, 2, 2))
sketch2.addConstraint(Sketcher.Constraint("Horizontal", 4, 2, 6, 2))
sketch2.addConstraint(Sketcher.Constraint("Horizontal", 8, 2, 10, 2))
sketch2.addConstraint(Sketcher.Constraint("Horizontal", 12, 2, 14, 2))
sketch2.addConstraint(Sketcher.Constraint("Horizontal", 16, 2, 18, 2))
sketch2.addConstraint(Sketcher.Constraint("Horizontal", 20, 2, 22, 2))
sketch2.addConstraint(Sketcher.Constraint("Horizontal", 24, 2, 26, 2))
sketch2.addConstraint(Sketcher.Constraint("Horizontal", 28, 2, 30, 2))
sketch2.addConstraint(Sketcher.Constraint("Horizontal", 32, 2, 34, 2))
sketch2.addConstraint(Sketcher.Constraint("Horizontal", 36, 2, 38, 2))
sketch2.addConstraint(Sketcher.Constraint("Horizontal", 40, 2, 42, 2))
sketch2.addConstraint(Sketcher.Constraint("Horizontal", 44, 2, 46, 2))
sketch2.addConstraint(Sketcher.Constraint("Horizontal", 48, 2, 50, 2))
sketch2.addConstraint(Sketcher.Constraint("Horizontal", 52, 2, 54, 2))
sketch2.addConstraint(Sketcher.Constraint("Horizontal", 56, 2, 58, 2))
sketch2.addConstraint(Sketcher.Constraint("Horizontal", 60, 2, 62, 2))
sketch2.addConstraint(Sketcher.Constraint("Horizontal", 64, 2, 66, 2))
sketch2.addConstraint(Sketcher.Constraint("Horizontal", 68, 2, 70, 2))
sketch2.addConstraint(Sketcher.Constraint("Horizontal", 72, 2, 74, 2))
sketch2.addConstraint(Sketcher.Constraint("Horizontal", 76, 2, 78, 2))
sketch2.addConstraint(Sketcher.Constraint("Vertical", 1, 2, 3, 2))
sketch2.addConstraint(Sketcher.Constraint("Equal", 3, 4))
sketch2.addConstraint(Sketcher.Constraint("Equal", 7, 8))
sketch2.addConstraint(Sketcher.Constraint("Equal", 11, 12))
sketch2.addConstraint(Sketcher.Constraint("Equal", 15, 16))
sketch2.addConstraint(Sketcher.Constraint("Equal", 19, 20))
sketch2.addConstraint(Sketcher.Constraint("Equal", 23, 24))
sketch2.addConstraint(Sketcher.Constraint("Equal", 27, 28))
sketch2.addConstraint(Sketcher.Constraint("Equal", 31, 32))
sketch2.addConstraint(Sketcher.Constraint("Equal", 35, 36))
sketch2.addConstraint(Sketcher.Constraint("Equal", 39, 40))
sketch2.addConstraint(Sketcher.Constraint("Equal", 43, 44))
sketch2.addConstraint(Sketcher.Constraint("Equal", 47, 48))
sketch2.addConstraint(Sketcher.Constraint("Equal", 51, 52))
sketch2.addConstraint(Sketcher.Constraint("Equal", 55, 56))
sketch2.addConstraint(Sketcher.Constraint("Equal", 59, 60))
sketch2.addConstraint(Sketcher.Constraint("Equal", 63, 64))
sketch2.addConstraint(Sketcher.Constraint("Equal", 67, 68))
sketch2.addConstraint(Sketcher.Constraint("Equal", 71, 72))
sketch2.addConstraint(Sketcher.Constraint("Equal", 75, 76))
sketch2.addConstraint(Sketcher.Constraint("Distance", 0, 5.0))
sketch2.addConstraint(Sketcher.Constraint("DistanceX", -1, 1, 1, 2, 8.0))
sketch2.addConstraint(Sketcher.Constraint("DistanceX", -1, 1, 42, 2, 9.697))
sketch2.addConstraint(Sketcher.Constraint("DistanceY", -1, 1, 23, 2, 12.190098))
sketch2.addConstraint(Sketcher.Constraint("DistanceY", -1, 1, 59, 2, 6.1789))
sketch2.addConstraint(Sketcher.Constraint("DistanceX", -1, 1, 4, 2, 21.998031))
sketch2.addConstraint(Sketcher.Constraint("DistanceY", -1, 1, 7, 2, 12.18305))
sketch2.addConstraint(Sketcher.Constraint("DistanceY", -1, 1, 9, 2, 19.25588))
sketch2.addConstraint(Sketcher.Constraint("DistanceX", -1, 1, 10, 2, 25.38946))
sketch2.addConstraint(Sketcher.Constraint("DistanceX", -1, 1, 13, 2, 39.387491))
sketch2.addConstraint(Sketcher.Constraint("DistanceY", -1, 1, 16, 2, 15.72387))
sketch2.addConstraint(Sketcher.Constraint("DistanceX", -1, 1, 17, 2, 49.849988))
sketch2.addConstraint(Sketcher.Constraint("DistanceX", -1, 1, 20, 2, 63.848019))
sketch2.addConstraint(Sketcher.Constraint("DistanceX", -1, 1, 25, 2, 70.774982))
sketch2.addConstraint(Sketcher.Constraint("DistanceY", -1, 1, 27, 2, 12.19186))
sketch2.addConstraint(Sketcher.Constraint("DistanceX", -1, 1, 29, 2, 81.237479))
sketch2.addConstraint(Sketcher.Constraint("DistanceY", -1, 1, 29, 2, 19.26469))
sketch2.addConstraint(Sketcher.Constraint("DistanceX", -1, 1, 32, 2, 95.23551))
sketch2.addConstraint(Sketcher.Constraint("DistanceY", -1, 1, 32, 2, 15.730918))
sketch2.addConstraint(Sketcher.Constraint("DistanceY", -1, 1, 36, 2, 15.73268))
sketch2.addConstraint(Sketcher.Constraint("DistanceX", -1, 1, 38, 2, 98.626939))
sketch2.addConstraint(Sketcher.Constraint("DistanceY", -1, 1, 41, 2, 13.24292))
sketch2.addConstraint(Sketcher.Constraint("DistanceY", -1, 1, 44, 2, 9.709148))
sketch2.addConstraint(Sketcher.Constraint("DistanceX", -1, 1, 45, 2, 23.695031))
sketch2.addConstraint(Sketcher.Constraint("DistanceX", -1, 1, 48, 2, 37.693062))
sketch2.addConstraint(Sketcher.Constraint("DistanceY", -1, 1, 48, 2, 9.71091))
sketch2.addConstraint(Sketcher.Constraint("DistanceX", -1, 1, 52, 2, 48.155559))
sketch2.addConstraint(Sketcher.Constraint("DistanceY", -1, 1, 55, 2, 6.177138))
sketch2.addConstraint(Sketcher.Constraint("DistanceX", -1, 1, 57, 2, 55.082522))
sketch2.addConstraint(Sketcher.Constraint("DistanceX", -1, 1, 61, 2, 65.545019))
sketch2.addConstraint(Sketcher.Constraint("DistanceY", -1, 1, 61, 2, 13.25173))
sketch2.addConstraint(Sketcher.Constraint("DistanceX", -1, 1, 64, 2, 79.54305))
sketch2.addConstraint(Sketcher.Constraint("DistanceY", -1, 1, 68, 2, 9.71972))
sketch2.addConstraint(Sketcher.Constraint("DistanceX", -1, 1, 70, 2, 82.934479))
sketch2.addConstraint(Sketcher.Constraint("DistanceX", -1, 1, 73, 2, 96.93251))
sketch2.addConstraint(Sketcher.Constraint("DistanceX", -1, 1, 76, 2, 110.930541))
sketch2.addConstraint(Sketcher.Constraint("DistanceY", -1, 1, 79, 2, 6.18771))
sketch2.addConstraint(Sketcher.Constraint("DistanceY", -1, 1, 0, 2, 15.716822))
sketch2.addConstraint(Sketcher.Constraint("DistanceY", -1, 1, 12, 2, 15.722108))
sketch2.addConstraint(Sketcher.Constraint("DistanceY", -1, 1, 64, 2, 9.717958))
sketch2.addConstraint(Sketcher.Constraint("DistanceY", -1, 1, 72, 2, 9.721482))
pocket1 = body.newObject("PartDesign::Pocket", "Pocket")
pocket1.Profile = sketch2
pocket1.Length = 5

doc.recompute()
